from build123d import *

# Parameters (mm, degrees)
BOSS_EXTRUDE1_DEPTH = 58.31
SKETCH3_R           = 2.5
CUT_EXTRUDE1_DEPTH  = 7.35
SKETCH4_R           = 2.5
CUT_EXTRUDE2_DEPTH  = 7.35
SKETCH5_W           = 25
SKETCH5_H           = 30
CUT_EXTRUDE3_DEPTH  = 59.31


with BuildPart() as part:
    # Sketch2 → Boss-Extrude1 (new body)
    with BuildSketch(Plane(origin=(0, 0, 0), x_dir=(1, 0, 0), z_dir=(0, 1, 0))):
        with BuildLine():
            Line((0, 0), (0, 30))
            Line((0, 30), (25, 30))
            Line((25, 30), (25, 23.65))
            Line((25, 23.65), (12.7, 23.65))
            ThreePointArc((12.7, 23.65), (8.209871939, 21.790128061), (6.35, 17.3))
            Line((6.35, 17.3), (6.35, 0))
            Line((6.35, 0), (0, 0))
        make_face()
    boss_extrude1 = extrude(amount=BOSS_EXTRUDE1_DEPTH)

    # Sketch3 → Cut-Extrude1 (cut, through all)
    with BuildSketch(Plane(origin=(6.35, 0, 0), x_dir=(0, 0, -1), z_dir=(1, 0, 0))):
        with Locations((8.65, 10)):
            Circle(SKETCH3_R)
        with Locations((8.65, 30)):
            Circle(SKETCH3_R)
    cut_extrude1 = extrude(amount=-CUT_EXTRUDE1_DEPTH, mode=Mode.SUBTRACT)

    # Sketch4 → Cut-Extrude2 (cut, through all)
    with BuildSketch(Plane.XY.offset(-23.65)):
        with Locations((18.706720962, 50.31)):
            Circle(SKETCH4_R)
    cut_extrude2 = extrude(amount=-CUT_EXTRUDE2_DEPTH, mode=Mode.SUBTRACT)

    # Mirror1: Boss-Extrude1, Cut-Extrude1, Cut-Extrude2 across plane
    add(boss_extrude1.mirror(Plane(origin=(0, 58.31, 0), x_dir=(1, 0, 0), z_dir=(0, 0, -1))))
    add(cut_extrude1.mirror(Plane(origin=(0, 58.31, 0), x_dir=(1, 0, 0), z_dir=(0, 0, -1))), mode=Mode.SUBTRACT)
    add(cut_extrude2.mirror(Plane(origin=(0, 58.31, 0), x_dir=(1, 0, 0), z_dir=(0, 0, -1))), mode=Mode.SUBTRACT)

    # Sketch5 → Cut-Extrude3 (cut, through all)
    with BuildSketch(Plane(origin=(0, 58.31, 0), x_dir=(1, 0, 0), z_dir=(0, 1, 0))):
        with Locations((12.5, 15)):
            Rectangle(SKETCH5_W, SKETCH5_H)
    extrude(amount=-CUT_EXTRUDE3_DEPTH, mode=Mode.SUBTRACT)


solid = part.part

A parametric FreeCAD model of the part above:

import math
import FreeCAD as App
import Part
import Sketcher

V = App.Vector
Q = App.Units.Quantity


def add_polygon(sketch, points):
    """Adds a closed chain of lines whose ends are joined by coincident constraints."""
    first, n = sketch.GeometryCount, len(points)
    for a, b in zip(points, points[1:] + points[:1]):
        sketch.addGeometry(Part.LineSegment(App.Vector(*a, 0), App.Vector(*b, 0)), False)
    for i in range(n):
        sketch.addConstraint(Sketcher.Constraint("Coincident", first + i, 2, first + (i + 1) % n, 1))

doc = App.newDocument("Part")
body = doc.addObject("PartDesign::Body", "Body")

# Sketch on XZ plane
sketch1 = body.newObject("Sketcher::SketchObject", "Sketch")
sketch1.AttachmentSupport = (doc.getObject("XZ_Plane"), [""])
sketch1.MapMode = "FlatFace"
sketch1.addGeometry([
    Part.LineSegment(V(0, -30, 0), V(0, 0, 0)),  # 0
    Part.LineSegment(V(0, 0, 0), V(6.35, 0, 0)),  # 1
    Part.LineSegment(V(6.35, 0, 0), V(6.35, -17.3, 0)),  # 2
    Part.ArcOfCircle(Part.Circle(V(12.7, -17.3, 0), V(0, 0, 1), 6.35), math.radians(180), math.radians(270)),  # 3
    Part.LineSegment(V(12.7, -23.65, 0), V(25, -23.65, 0)),  # 4
    Part.LineSegment(V(25, -23.65, 0), V(25, -30, 0)),  # 5
    Part.LineSegment(V(25, -30, 0), V(0, -30, 0)),  # 6
], False)
sketch1.addConstraint([
    Sketcher.Constraint("Coincident", 0, 2, 1, 1),
    Sketcher.Constraint("Coincident", 1, 2, 2, 1),
    Sketcher.Constraint("Tangent", 2, 2, 3, 1),
    Sketcher.Constraint("Tangent", 3, 2, 4, 1),
    Sketcher.Constraint("Coincident", 4, 2, 5, 1),
    Sketcher.Constraint("Coincident", 5, 2, 6, 1),
    Sketcher.Constraint("Coincident", 6, 2, 0, 1),
    Sketcher.Constraint("Vertical", 0),
    Sketcher.Constraint("Horizontal", 1),
    Sketcher.Constraint("Vertical", 2),
    Sketcher.Constraint("Horizontal", 4),
    Sketcher.Constraint("Vertical", 5),
    Sketcher.Constraint("Horizontal", 6),
    Sketcher.Constraint("Coincident", 0, 2, -1, 1),
    Sketcher.Constraint("Equal", 1, 5),
    Sketcher.Constraint("DistanceX", 6, 2, 6, 1, Q("25 mm")),
    Sketcher.Constraint("DistanceY", 0, 1, 0, 2, Q("30 mm")),
    Sketcher.Constraint("Radius", 3, Q("6.35 mm")),
    Sketcher.Constraint("DistanceX", 4, 1, 4, 2, Q("12.3 mm")),
])
pad1 = body.newObject("PartDesign::Pad", "Pad")
pad1.Profile = sketch1
pad1.Length = 58.31
pad1.Reversed = True

# Sketch on YZ plane
sketch2 = body.newObject("Sketcher::SketchObject", "Sketch001")
sketch2.AttachmentSupport = (doc.getObject("YZ_Plane"), [""])
sketch2.MapMode = "FlatFace"
sketch2.AttachmentOffset = App.Placement(V(0, 0, 6.35), App.Rotation())
sketch2.addGeometry([
    Part.Circle(V(10, -8.65, 0), V(0, 0, 1), 2.5),
    Part.Circle(V(30, -8.65, 0), V(0, 0, 1), 2.5),
], False)
sketch2.addConstraint([
    Sketcher.Constraint("Equal", 0, 1),
    Sketcher.Constraint("Horizontal", 0, 3, 1, 3),
    Sketcher.Constraint("Diameter", 0, Q("5 mm")),
    Sketcher.Constraint("DistanceX", -1, 1, 0, 3, Q("10 mm")),
    Sketcher.Constraint("DistanceX", -1, 1, 1, 3, Q("30 mm")),
    Sketcher.Constraint("DistanceY", 0, 3, -1, 1, Q("8.65 mm")),
])
pocket1 = body.newObject("PartDesign::Pocket", "Pocket")
pocket1.Profile = sketch2
pocket1.Type = "ThroughAll"

# Sketch on XY plane
sketch3 = body.newObject("Sketcher::SketchObject", "Sketch002")
sketch3.AttachmentSupport = (doc.getObject("XY_Plane"), [""])
sketch3.MapMode = "FlatFace"
sketch3.AttachmentOffset = App.Placement(V(0, 0, -23.65), App.Rotation())
sketch3.addGeometry(Part.Circle(V(18.706721, 50.31, 0), V(0, 0, 1), 2.5), False)
sketch3.addConstraint([
    Sketcher.Constraint("Diameter", 0, Q("5 mm")),
    Sketcher.Constraint("DistanceY", -1, 1, 0, 3, Q("50.31 mm")),
    Sketcher.Constraint("DistanceX", -1, 1, 0, 3, Q("18.706721 mm")),
])
pocket2 = body.newObject("PartDesign::Pocket", "Pocket001")
pocket2.Profile = sketch3
pocket2.Type = "ThroughAll"
doc.recompute()

mirrored = body.newObject("PartDesign::Mirrored", "Mirrored")
mirrored.Originals = [pad1, pocket1, pocket2]
mirrored.MirrorPlane = (doc.getObject("XY_Plane"), [""])
body.Tip = mirrored

# Sketch on XZ plane
sketch4 = body.newObject("Sketcher::SketchObject", "Sketch003")
sketch4.AttachmentSupport = (doc.getObject("XZ_Plane"), [""])
sketch4.MapMode = "FlatFace"
sketch4.AttachmentOffset = App.Placement(V(0, 0, -58.31), App.Rotation())
add_polygon(sketch4, [(0, -30), (0, 0), (25, 0), (25, -30)])  # lines 0-3
sketch4.addConstraint([
    Sketcher.Constraint("Vertical", 0),
    Sketcher.Constraint("Horizontal", 1),
    Sketcher.Constraint("Vertical", 2),
    Sketcher.Constraint("Horizontal", 3),
    Sketcher.Constraint("Coincident", 0, 2, -1, 1),
    Sketcher.Constraint("DistanceX", 1, 1, 1, 2, Q("25 mm")),
    Sketcher.Constraint("DistanceY", 0, 1, 0, 2, Q("30 mm")),
])
pocket3 = body.newObject("PartDesign::Pocket", "Pocket002")
pocket3.Profile = sketch4
pocket3.Type = "ThroughAll"
pocket3.Reversed = True

doc.recompute()
